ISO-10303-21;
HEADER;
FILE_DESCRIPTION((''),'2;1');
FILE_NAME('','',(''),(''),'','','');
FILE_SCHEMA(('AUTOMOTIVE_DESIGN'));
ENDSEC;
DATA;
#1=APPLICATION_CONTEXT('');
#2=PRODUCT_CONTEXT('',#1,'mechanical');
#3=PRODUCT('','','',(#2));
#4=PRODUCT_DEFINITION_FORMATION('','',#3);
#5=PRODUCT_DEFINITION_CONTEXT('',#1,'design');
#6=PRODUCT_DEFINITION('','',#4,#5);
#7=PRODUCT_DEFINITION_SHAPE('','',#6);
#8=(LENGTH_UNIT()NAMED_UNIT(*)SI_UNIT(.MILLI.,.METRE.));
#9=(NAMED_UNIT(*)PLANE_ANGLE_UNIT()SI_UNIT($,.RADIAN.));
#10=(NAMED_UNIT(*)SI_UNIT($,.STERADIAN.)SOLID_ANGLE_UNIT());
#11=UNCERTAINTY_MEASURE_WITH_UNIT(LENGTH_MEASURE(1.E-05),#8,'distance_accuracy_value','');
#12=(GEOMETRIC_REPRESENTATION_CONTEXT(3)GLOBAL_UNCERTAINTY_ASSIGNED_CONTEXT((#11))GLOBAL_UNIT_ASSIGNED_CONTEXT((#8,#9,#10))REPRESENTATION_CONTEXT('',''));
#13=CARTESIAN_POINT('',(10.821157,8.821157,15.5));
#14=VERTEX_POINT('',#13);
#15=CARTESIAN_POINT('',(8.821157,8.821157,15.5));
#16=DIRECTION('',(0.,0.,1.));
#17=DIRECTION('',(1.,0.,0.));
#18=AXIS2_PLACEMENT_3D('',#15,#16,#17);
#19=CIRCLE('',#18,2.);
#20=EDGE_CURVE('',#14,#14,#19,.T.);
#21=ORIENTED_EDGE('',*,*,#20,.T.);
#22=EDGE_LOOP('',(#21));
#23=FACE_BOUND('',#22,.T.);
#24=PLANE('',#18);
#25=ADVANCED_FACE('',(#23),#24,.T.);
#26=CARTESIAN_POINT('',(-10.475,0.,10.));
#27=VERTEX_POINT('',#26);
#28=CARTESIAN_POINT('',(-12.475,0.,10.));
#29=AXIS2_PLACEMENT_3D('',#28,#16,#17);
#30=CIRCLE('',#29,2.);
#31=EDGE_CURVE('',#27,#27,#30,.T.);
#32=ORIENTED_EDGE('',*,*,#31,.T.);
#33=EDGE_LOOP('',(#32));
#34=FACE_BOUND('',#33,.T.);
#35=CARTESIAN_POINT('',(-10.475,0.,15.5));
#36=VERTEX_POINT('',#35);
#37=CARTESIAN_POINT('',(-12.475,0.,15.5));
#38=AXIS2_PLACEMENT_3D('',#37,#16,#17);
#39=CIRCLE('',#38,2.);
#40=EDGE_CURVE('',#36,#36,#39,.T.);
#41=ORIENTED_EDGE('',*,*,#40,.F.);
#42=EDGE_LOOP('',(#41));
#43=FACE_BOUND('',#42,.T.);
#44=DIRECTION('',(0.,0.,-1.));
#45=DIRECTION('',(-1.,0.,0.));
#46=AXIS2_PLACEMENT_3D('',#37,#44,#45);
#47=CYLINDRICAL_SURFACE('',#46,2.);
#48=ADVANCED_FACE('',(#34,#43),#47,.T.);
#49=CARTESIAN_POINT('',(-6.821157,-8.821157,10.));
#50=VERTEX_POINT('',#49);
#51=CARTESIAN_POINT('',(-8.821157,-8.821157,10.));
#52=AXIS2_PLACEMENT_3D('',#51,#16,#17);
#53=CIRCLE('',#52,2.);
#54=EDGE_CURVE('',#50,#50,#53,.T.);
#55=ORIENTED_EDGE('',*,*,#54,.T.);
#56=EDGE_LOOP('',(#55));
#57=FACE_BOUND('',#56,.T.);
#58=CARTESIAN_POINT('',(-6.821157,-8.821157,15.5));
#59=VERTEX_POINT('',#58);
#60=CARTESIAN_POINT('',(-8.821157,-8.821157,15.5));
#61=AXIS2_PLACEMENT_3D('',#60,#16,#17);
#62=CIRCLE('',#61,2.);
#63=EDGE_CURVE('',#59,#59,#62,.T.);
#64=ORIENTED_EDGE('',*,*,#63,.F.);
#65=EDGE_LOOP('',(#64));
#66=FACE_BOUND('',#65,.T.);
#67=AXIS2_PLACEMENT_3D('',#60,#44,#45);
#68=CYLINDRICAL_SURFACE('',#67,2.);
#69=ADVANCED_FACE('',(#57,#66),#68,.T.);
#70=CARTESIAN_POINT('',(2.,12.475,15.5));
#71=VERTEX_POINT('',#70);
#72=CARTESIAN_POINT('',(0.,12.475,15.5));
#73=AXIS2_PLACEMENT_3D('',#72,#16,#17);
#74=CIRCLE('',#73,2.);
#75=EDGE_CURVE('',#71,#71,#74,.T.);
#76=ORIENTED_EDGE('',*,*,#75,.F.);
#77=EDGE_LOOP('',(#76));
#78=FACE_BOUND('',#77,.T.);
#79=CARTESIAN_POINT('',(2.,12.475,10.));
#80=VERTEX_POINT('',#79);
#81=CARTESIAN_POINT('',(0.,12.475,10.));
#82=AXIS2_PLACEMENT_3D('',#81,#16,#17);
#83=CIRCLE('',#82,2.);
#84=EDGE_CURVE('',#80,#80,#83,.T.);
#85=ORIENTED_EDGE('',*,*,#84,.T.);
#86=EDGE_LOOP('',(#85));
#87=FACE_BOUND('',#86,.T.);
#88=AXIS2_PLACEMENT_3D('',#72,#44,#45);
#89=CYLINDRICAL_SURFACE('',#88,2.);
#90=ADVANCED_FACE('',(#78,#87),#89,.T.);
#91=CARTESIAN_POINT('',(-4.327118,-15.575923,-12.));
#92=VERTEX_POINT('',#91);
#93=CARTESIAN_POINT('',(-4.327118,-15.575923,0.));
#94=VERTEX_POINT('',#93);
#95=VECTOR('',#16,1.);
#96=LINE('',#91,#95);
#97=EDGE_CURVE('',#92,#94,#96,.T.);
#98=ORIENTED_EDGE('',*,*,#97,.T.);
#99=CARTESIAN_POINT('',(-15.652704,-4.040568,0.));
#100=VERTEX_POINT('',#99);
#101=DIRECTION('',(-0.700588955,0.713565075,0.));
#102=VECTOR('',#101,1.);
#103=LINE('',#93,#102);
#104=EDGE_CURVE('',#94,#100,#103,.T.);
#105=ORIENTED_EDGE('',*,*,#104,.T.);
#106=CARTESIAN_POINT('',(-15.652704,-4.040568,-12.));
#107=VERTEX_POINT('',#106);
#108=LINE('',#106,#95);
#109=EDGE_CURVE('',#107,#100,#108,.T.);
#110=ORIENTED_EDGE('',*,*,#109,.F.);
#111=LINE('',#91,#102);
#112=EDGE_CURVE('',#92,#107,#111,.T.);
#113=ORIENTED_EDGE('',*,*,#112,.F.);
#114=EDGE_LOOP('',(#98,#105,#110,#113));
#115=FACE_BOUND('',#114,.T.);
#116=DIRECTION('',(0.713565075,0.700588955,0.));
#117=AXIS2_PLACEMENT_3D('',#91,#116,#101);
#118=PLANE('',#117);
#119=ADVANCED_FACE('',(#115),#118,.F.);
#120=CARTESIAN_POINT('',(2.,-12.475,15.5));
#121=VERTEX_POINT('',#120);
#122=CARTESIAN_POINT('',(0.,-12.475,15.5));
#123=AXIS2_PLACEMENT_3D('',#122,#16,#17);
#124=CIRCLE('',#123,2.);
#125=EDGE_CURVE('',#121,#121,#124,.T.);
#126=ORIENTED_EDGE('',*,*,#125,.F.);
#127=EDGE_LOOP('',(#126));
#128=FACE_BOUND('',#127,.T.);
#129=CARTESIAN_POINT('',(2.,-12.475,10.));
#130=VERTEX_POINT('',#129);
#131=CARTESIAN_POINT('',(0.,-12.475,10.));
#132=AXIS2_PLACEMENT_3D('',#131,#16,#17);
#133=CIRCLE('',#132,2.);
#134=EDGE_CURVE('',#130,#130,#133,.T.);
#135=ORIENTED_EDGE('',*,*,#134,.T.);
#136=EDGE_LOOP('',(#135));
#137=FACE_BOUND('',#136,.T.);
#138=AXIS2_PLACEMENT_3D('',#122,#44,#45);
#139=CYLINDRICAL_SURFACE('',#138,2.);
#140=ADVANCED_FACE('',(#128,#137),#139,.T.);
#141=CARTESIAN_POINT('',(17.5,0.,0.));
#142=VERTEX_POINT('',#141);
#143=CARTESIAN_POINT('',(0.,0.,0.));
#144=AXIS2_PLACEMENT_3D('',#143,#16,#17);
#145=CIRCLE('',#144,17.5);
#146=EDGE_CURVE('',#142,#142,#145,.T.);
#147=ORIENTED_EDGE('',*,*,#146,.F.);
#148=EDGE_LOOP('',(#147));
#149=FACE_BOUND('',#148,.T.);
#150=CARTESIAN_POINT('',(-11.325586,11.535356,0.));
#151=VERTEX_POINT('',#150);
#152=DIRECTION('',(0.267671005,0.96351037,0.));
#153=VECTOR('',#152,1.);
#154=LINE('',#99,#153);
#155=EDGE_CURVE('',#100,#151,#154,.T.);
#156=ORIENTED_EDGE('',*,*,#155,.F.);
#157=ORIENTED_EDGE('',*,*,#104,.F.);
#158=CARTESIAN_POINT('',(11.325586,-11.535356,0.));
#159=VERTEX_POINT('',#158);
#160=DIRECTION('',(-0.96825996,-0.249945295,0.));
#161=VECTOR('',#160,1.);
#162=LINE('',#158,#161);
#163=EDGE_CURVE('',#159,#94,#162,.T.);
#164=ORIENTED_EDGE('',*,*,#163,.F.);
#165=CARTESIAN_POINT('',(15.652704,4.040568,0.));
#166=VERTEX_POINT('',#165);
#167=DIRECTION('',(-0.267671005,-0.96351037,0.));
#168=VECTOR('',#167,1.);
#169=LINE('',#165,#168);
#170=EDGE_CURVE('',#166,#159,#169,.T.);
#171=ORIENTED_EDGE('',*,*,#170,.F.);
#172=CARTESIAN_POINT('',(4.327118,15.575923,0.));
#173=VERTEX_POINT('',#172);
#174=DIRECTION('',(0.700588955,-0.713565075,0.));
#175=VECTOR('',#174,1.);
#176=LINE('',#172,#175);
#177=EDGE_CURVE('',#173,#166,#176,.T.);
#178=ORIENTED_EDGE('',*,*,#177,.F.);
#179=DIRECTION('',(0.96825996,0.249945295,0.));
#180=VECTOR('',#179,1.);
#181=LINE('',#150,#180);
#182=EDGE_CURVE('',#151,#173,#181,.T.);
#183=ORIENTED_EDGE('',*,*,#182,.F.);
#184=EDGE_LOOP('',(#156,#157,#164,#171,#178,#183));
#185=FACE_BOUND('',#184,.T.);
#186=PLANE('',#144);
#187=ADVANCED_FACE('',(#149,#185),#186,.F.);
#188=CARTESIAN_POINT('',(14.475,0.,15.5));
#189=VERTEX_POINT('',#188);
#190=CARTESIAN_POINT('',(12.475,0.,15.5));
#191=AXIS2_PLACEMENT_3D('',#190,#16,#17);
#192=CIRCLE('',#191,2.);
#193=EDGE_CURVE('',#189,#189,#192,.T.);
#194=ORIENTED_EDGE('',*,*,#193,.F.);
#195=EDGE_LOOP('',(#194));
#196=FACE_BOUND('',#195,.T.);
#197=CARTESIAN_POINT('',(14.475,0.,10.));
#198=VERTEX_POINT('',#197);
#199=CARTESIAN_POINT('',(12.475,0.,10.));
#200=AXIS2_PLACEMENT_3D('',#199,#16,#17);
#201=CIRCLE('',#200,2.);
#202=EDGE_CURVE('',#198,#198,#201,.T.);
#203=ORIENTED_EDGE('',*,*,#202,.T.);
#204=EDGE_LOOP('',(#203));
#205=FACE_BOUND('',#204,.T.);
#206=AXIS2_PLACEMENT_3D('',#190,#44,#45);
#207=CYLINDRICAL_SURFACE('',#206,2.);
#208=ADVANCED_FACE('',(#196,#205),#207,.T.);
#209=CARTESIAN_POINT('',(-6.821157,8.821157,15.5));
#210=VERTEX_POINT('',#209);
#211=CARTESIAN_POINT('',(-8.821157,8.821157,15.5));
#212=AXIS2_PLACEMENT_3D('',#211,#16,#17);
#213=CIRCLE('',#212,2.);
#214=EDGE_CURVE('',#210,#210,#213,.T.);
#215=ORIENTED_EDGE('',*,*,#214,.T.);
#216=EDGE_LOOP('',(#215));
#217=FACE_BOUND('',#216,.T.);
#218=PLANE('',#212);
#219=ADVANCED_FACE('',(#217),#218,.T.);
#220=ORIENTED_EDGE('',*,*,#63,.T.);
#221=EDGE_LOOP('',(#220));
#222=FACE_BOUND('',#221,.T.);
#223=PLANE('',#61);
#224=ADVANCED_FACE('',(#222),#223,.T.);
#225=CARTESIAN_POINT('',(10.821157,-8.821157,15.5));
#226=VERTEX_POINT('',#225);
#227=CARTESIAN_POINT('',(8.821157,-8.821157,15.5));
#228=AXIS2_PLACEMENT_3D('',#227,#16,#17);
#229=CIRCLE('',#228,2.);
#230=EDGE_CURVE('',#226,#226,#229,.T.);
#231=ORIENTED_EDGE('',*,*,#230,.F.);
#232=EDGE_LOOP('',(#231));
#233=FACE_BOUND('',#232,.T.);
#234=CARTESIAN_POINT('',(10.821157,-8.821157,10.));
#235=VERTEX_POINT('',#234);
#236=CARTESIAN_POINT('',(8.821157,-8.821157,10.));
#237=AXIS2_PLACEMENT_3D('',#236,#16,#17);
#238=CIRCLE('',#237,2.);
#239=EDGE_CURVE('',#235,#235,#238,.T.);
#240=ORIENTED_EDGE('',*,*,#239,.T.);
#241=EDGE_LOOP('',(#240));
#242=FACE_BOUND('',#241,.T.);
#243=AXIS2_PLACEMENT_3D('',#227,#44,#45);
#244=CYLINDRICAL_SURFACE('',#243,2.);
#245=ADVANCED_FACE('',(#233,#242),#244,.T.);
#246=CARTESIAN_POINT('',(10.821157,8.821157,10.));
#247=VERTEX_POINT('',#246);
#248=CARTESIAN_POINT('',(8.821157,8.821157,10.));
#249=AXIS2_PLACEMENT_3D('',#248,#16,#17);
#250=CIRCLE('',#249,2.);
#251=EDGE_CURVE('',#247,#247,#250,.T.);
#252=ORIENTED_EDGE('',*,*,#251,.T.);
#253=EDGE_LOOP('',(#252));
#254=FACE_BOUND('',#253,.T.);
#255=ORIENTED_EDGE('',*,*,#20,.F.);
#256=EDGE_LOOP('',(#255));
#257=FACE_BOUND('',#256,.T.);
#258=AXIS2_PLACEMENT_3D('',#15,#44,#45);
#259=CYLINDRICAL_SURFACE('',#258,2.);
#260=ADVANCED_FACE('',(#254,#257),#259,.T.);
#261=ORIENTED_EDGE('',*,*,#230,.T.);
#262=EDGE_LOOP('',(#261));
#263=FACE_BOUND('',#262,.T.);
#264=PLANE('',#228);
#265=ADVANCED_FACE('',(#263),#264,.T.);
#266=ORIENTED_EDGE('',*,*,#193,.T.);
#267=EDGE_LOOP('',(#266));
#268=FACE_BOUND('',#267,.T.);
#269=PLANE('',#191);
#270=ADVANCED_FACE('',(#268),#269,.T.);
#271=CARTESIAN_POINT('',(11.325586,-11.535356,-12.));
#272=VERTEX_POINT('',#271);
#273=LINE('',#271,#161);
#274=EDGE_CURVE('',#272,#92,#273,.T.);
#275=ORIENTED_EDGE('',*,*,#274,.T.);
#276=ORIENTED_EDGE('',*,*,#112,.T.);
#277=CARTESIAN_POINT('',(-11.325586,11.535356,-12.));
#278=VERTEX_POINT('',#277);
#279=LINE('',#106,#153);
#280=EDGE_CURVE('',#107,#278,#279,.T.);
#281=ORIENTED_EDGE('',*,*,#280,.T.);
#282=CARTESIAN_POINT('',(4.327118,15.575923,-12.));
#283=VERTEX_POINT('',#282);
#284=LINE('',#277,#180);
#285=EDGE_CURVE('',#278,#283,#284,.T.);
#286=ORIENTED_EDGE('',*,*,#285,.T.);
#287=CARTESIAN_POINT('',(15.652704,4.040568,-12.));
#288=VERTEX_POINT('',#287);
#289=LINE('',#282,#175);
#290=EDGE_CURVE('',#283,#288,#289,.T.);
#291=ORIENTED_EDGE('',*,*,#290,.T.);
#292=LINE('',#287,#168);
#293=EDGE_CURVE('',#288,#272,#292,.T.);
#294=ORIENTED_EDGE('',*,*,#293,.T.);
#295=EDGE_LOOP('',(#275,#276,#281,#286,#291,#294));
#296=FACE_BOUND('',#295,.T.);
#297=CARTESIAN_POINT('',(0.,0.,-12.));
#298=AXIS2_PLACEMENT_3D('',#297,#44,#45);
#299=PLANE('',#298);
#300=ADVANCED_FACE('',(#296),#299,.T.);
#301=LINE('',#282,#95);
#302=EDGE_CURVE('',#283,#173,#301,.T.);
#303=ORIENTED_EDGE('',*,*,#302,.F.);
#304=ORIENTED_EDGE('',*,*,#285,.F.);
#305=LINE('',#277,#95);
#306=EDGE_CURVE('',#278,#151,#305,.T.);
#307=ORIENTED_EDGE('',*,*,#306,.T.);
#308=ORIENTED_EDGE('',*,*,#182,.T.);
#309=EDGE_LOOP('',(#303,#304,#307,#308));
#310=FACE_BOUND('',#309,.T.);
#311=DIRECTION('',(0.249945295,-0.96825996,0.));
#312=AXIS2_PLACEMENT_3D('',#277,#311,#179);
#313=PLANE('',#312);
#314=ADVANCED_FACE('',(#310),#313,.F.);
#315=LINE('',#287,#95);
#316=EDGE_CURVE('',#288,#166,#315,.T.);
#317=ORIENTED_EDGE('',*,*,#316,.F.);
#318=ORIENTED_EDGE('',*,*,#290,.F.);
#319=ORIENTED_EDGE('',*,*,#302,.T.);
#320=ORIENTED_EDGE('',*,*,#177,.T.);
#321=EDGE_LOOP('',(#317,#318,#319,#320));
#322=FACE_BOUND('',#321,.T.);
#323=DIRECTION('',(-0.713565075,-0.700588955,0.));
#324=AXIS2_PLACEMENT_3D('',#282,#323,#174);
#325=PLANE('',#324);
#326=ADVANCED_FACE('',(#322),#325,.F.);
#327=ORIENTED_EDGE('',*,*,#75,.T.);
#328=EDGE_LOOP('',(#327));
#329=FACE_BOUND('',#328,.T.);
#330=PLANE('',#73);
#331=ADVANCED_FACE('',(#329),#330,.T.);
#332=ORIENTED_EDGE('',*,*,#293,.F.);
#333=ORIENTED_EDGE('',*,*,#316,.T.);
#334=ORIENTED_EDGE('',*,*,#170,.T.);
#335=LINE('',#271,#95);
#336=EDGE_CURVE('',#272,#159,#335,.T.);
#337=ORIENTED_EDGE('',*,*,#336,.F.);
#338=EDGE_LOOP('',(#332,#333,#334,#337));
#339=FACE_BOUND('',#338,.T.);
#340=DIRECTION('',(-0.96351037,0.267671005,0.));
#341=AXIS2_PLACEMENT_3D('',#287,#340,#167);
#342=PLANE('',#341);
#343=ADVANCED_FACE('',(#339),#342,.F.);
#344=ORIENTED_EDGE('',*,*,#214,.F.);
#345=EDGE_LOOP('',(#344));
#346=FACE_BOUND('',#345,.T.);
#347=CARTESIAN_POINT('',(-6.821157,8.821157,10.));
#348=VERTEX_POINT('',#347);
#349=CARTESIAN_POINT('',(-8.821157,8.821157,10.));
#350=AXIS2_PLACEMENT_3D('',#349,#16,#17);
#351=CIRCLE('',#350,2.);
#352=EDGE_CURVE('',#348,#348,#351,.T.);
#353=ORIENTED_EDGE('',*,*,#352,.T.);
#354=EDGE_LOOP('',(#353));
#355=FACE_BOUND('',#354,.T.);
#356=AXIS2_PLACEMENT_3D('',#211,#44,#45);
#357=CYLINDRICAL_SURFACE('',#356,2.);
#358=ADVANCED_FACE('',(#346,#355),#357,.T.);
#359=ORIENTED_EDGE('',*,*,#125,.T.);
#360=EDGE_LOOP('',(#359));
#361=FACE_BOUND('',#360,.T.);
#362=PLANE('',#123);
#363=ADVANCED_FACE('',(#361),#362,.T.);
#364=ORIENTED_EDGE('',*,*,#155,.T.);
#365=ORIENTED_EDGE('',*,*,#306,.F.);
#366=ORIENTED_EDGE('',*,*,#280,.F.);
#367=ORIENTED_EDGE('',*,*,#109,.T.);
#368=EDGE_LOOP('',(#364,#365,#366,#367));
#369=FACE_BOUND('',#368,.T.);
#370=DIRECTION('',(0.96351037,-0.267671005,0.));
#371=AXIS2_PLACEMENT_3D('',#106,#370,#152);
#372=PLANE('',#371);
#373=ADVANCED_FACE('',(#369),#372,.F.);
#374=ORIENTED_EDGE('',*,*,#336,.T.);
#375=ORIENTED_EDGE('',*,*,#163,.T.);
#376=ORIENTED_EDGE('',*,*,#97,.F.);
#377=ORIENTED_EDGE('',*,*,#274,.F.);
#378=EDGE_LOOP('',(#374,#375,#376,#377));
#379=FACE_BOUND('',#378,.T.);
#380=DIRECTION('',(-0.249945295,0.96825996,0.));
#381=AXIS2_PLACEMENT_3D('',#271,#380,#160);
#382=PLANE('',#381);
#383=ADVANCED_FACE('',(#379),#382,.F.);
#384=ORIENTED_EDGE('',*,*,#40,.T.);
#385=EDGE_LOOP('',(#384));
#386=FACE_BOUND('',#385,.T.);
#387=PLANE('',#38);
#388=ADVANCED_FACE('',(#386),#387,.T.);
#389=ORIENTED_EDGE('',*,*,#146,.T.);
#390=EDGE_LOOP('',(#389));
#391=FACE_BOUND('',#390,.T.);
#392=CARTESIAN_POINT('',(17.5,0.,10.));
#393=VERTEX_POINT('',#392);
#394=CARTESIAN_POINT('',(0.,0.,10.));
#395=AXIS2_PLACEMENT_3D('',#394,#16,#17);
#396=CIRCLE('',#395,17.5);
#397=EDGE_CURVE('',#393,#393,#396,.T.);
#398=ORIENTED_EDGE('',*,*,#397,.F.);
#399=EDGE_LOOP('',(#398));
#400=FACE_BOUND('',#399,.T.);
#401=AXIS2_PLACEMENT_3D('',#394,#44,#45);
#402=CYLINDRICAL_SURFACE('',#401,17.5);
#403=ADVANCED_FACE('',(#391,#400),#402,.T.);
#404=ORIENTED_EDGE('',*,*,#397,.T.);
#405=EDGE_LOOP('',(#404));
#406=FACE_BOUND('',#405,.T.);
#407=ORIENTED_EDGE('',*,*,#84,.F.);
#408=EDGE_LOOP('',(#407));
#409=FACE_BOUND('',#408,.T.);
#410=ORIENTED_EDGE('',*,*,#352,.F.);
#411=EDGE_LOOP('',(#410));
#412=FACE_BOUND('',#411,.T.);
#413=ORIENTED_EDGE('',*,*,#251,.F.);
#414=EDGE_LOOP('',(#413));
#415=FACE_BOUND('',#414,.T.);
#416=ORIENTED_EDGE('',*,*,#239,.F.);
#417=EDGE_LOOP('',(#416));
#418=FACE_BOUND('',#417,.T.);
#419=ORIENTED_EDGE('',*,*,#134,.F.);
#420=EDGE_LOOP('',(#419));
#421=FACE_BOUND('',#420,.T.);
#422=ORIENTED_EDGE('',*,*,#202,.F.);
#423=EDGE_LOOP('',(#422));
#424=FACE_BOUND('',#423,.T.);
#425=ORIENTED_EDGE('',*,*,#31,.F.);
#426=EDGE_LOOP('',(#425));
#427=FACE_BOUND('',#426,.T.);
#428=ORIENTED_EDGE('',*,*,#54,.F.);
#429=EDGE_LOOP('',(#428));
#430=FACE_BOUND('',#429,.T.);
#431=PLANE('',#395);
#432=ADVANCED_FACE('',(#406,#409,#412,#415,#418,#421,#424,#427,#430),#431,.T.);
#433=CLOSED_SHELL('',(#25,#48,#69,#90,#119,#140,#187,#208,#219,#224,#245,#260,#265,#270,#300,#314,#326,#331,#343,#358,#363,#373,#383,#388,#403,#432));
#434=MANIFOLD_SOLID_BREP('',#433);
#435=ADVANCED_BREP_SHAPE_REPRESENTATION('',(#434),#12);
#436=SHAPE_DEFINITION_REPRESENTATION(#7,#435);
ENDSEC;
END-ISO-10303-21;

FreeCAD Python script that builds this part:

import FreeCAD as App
import Part
import Sketcher

V = App.Vector
Q = App.Units.Quantity


def add_polygon(sketch, points):
    """Adds a closed chain of lines whose ends are joined by coincident constraints."""
    first, n = sketch.GeometryCount, len(points)
    for a, b in zip(points, points[1:] + points[:1]):
        sketch.addGeometry(Part.LineSegment(App.Vector(*a, 0), App.Vector(*b, 0)), False)
    for i in range(n):
        sketch.addConstraint(Sketcher.Constraint("Coincident", first + i, 2, first + (i + 1) % n, 1))

doc = App.newDocument("Part")
body = doc.addObject("PartDesign::Body", "Body")

# Sketch on XY plane
sketch1 = body.newObject("Sketcher::SketchObject", "Sketch")
sketch1.AttachmentSupport = (doc.getObject("XY_Plane"), [""])
sketch1.MapMode = "FlatFace"
sketch1.addGeometry(Part.Circle(V(0, 0, 0), V(0, 0, 1), 18), False)
sketch1.addConstraint(Sketcher.Constraint("Coincident", 0, 3, -1, 1))
sketch1.addConstraint(Sketcher.Constraint("Diameter", 0, Q("35 mm")))
pad1 = body.newObject("PartDesign::Pad", "Pad")
pad1.Profile = sketch1
pad1.Length = 10

# Sketch on XY plane
sketch2 = body.newObject("Sketcher::SketchObject", "Sketch001")
sketch2.AttachmentSupport = (doc.getObject("XY_Plane"), [""])
sketch2.MapMode = "FlatFace"
sketch2.AttachmentOffset = App.Placement(V(0, 0, 10), App.Rotation())
sketch2.addGeometry(Part.Circle(V(8.8, 8.8, 0), V(0, 0, 1), 2), False)
sketch2.addGeometry(Part.Circle(V(0, 12.5, 0), V(0, 0, 1), 2), False)
sketch2.addGeometry(Part.Circle(V(12.5, 0, 0), V(0, 0, 1), 2), False)
sketch2.addGeometry(Part.Circle(V(8.8, -8.8, 0), V(0, 0, 1), 2), False)
sketch2.addGeometry(Part.Circle(V(0, -12.5, 0), V(0, 0, 1), 2), False)
sketch2.addGeometry(Part.Circle(V(-8.8, -8.8, 0), V(0, 0, 1), 2), False)
sketch2.addGeometry(Part.Circle(V(-12.5, 0, 0), V(0, 0, 1), 2), False)
sketch2.addGeometry(Part.Circle(V(-8.8, 8.8, 0), V(0, 0, 1), 2), False)
sketch2.addConstraint(Sketcher.Constraint("Equal", 0, 1))
sketch2.addConstraint(Sketcher.Constraint("Equal", 1, 2))
sketch2.addConstraint(Sketcher.Constraint("Equal", 2, 3))
sketch2.addConstraint(Sketcher.Constraint("Equal", 3, 4))
sketch2.addConstraint(Sketcher.Constraint("Equal", 4, 5))
sketch2.addConstraint(Sketcher.Constraint("Equal", 5, 6))
sketch2.addConstraint(Sketcher.Constraint("Equal", 6, 7))
sketch2.addConstraint(Sketcher.Constraint("Symmetric", 1, 3, 4, 3, -1, 1))
sketch2.addConstraint(Sketcher.Constraint("Symmetric", 0, 3, 5, 3, -1, 1))
sketch2.addConstraint(Sketcher.Constraint("Symmetric", 2, 3, 6, 3, -1, 1))
sketch2.addConstraint(Sketcher.Constraint("Symmetric", 3, 3, 7, 3, -1, 1))
sketch2.addConstraint(Sketcher.Constraint("Symmetric", 3, 3, 5, 3, -2))
sketch2.addConstraint(Sketcher.Constraint("PointOnObject", 1, 3, -2))
sketch2.addConstraint(Sketcher.Constraint("PointOnObject", 2, 3, -1))
sketch2.addConstraint(Sketcher.Constraint("Diameter", 0, Q("4 mm")))
sketch2.addConstraint(Sketcher.Constraint("DistanceY", 4, 3, 1, 3, Q("24.95 mm")))
sketch2.addConstraint(Sketcher.Constraint("DistanceX", -1, 1, 2, 3, Q("12.475 mm")))
sketch2.addConstraint(Sketcher.Constraint("DistanceX", -1, 1, 0, 3, Q("8.821157 mm")))
sketch2.addConstraint(Sketcher.Constraint("DistanceY", -1, 1, 0, 3, Q("8.821157 mm")))
pad2 = body.newObject("PartDesign::Pad", "Pad001")
pad2.Profile = sketch2
pad2.Length = 5.5

# Sketch on XY plane
sketch3 = body.newObject("Sketcher::SketchObject", "Sketch002")
sketch3.AttachmentSupport = (doc.getObject("XY_Plane"), [""])
sketch3.MapMode = "FlatFace"
add_polygon(sketch3, [(-11, 12), (4, 16), (16, 4), (11, -12), (-4, -16), (-16, -4)])  # lines 0-5
sketch3.addConstraint(Sketcher.Constraint("Symmetric", 0, 2, 3, 2, -1, 1))
sketch3.addConstraint(Sketcher.Constraint("Symmetric", 1, 2, 4, 2, -1, 1))
sketch3.addConstraint(Sketcher.Constraint("Symmetric", 2, 2, 5, 2, -1, 1))
sketch3.addConstraint(Sketcher.Constraint("Equal", 0, 1))
sketch3.addConstraint(Sketcher.Constraint("Equal", 1, 2))
sketch3.addConstraint(Sketcher.Constraint("DistanceX", 0, 2, 2, 2, Q("6.998468 mm")))
sketch3.addConstraint(Sketcher.Constraint("DistanceY", 2, 2, 0, 2, Q("27.111279 mm")))
sketch3.addConstraint(Sketcher.Constraint("DistanceY", 3, 2, 1, 2, Q("19.616491 mm")))
sketch3.addConstraint(Sketcher.Constraint("DistanceX", 4, 2, 2, 2, Q("26.97829 mm")))
pad3 = body.newObject("PartDesign::Pad", "Pad002")
pad3.Profile = sketch3
pad3.Length = 12
pad3.Reversed = True

doc.recompute()
